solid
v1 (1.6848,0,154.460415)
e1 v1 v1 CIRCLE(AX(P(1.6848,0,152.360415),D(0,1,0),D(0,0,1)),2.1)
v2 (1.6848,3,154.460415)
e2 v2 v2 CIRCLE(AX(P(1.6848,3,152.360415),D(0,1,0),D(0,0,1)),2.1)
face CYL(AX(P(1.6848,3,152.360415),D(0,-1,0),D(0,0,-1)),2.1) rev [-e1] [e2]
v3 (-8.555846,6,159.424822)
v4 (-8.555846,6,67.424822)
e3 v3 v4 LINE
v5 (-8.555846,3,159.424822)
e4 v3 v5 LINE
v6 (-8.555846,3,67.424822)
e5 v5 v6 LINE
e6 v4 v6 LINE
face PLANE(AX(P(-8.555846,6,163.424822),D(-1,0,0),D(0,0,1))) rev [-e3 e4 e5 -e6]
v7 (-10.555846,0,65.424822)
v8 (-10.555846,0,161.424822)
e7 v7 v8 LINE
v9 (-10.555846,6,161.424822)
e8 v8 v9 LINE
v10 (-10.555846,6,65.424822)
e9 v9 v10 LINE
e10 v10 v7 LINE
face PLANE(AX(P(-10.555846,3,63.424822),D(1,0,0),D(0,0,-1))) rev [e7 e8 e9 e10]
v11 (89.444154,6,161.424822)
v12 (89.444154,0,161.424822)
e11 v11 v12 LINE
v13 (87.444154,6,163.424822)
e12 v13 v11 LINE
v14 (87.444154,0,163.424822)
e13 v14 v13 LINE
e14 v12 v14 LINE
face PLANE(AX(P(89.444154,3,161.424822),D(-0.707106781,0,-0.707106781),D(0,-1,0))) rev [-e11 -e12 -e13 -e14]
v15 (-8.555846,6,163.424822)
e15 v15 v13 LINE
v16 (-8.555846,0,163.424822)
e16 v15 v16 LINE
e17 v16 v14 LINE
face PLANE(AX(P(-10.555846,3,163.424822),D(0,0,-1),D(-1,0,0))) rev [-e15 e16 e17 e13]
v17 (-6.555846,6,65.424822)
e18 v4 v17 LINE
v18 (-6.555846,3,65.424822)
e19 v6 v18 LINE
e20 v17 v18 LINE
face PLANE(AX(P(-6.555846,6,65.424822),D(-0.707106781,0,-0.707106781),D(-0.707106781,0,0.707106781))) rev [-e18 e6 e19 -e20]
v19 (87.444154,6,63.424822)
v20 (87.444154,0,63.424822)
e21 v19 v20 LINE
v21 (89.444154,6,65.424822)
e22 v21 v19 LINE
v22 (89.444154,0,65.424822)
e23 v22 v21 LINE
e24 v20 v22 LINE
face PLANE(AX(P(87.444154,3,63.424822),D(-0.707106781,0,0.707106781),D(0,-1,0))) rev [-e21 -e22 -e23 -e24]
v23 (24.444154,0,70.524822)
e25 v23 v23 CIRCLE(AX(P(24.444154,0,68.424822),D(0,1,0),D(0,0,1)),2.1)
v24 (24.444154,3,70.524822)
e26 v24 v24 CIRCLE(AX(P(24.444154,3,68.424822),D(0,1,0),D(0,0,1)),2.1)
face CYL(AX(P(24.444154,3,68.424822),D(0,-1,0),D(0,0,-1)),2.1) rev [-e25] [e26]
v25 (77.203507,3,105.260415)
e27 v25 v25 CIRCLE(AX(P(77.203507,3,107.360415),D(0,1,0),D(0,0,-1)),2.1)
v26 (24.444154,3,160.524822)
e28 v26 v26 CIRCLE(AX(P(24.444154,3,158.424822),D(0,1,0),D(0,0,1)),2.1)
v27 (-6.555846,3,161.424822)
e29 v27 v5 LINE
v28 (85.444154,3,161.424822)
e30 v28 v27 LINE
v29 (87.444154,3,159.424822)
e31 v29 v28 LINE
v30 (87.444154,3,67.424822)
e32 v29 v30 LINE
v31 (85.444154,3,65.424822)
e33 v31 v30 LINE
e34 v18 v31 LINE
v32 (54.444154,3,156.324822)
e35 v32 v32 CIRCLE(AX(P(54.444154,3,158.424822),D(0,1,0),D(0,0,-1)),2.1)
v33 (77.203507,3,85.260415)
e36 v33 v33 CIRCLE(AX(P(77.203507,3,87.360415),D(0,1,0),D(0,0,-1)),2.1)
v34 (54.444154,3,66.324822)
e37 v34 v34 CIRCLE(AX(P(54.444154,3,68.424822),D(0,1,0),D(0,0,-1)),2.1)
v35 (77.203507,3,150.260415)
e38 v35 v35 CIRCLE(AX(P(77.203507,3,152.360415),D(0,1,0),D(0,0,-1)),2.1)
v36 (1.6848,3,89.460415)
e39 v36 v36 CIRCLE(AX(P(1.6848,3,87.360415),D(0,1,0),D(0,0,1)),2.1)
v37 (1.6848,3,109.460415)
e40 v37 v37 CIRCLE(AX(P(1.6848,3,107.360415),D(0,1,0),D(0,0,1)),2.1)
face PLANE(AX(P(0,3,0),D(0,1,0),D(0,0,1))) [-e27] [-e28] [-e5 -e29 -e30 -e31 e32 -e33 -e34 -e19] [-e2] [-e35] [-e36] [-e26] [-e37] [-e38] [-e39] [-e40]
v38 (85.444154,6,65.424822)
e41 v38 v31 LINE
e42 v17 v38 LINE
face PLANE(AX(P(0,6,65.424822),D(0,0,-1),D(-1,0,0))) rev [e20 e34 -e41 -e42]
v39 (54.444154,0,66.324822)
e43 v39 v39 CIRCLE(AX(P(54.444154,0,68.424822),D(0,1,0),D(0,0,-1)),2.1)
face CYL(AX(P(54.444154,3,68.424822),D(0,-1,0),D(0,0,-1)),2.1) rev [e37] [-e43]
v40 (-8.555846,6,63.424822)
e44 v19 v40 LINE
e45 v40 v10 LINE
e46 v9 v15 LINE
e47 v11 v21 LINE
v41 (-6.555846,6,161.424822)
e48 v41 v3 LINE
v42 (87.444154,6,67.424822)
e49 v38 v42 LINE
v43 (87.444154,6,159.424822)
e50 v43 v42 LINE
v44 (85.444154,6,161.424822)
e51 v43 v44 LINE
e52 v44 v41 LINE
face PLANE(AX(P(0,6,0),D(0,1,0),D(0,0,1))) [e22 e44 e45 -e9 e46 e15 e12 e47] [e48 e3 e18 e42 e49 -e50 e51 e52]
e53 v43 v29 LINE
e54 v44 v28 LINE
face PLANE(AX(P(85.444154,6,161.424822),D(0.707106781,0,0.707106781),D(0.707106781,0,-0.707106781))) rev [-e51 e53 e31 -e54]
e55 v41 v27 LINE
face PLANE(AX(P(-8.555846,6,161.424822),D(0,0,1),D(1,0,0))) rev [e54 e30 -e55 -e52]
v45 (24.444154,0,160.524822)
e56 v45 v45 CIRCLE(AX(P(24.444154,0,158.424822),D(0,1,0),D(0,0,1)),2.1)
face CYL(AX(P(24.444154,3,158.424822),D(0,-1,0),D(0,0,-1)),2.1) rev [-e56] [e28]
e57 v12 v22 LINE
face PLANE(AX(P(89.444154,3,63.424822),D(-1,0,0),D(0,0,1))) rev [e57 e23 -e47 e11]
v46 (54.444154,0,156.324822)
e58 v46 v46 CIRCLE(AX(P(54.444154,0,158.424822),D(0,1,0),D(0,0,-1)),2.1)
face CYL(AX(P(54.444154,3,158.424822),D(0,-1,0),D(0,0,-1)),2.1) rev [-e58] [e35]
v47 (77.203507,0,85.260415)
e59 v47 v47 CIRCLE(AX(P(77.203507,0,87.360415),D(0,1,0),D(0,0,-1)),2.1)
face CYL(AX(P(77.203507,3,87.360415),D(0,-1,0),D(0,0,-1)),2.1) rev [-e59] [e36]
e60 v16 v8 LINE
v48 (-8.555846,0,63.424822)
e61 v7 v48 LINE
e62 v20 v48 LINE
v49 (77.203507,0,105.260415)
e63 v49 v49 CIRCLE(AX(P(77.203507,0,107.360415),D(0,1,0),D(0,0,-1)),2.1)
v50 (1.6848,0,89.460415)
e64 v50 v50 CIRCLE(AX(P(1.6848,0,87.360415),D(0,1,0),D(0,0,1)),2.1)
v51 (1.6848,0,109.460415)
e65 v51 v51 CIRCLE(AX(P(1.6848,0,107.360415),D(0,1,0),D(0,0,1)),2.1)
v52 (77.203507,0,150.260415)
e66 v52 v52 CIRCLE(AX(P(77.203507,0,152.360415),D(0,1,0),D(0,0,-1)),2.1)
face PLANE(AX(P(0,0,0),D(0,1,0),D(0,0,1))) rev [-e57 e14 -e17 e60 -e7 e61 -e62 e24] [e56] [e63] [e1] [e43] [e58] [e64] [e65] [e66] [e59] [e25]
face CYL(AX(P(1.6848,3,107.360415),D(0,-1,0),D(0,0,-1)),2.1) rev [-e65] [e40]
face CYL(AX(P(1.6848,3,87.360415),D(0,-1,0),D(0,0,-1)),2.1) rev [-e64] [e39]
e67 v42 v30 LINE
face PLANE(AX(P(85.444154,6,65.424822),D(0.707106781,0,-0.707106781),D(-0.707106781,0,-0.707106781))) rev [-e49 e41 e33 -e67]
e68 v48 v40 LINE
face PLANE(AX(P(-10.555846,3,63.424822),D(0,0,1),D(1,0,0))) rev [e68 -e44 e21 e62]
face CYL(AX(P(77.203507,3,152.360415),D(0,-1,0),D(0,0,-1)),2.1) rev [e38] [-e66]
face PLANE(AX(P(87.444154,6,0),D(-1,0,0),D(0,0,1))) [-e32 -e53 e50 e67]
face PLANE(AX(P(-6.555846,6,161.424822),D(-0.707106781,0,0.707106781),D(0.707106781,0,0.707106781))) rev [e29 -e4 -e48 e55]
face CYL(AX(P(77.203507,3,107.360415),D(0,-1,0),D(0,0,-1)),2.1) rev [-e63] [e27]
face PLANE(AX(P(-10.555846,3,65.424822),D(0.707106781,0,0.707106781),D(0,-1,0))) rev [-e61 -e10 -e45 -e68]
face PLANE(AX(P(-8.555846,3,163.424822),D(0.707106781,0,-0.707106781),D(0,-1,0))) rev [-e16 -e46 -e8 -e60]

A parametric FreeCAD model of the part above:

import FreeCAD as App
import Part
import Sketcher
from FreeCAD import Vector


def edges_at(feature, points):
    """Names of the edges that pass closest to the given points."""
    edges = feature.Shape.Edges
    near = lambda p: min(range(len(edges)), key=lambda i: edges[i].distToShape(Part.Vertex(*p))[0])
    return sorted({f"Edge{near(p) + 1}" for p in points})

doc = App.newDocument("Part")
body = doc.addObject("PartDesign::Body", "Body")

sketch1 = body.newObject("Sketcher::SketchObject", "Sketch")
sketch1.AttachmentSupport = (doc.getObject("XZ_Plane"), [""])
sketch1.MapMode = "FlatFace"
sketch1.addGeometry(Part.LineSegment(Vector(-10.6, 63.4, 0), Vector(-10.6, 163.4, 0)), False)
sketch1.addGeometry(Part.LineSegment(Vector(-10.6, 163.4, 0), Vector(89.4, 163.4, 0)), False)
sketch1.addGeometry(Part.LineSegment(Vector(89.4, 163.4, 0), Vector(89.4, 63.4, 0)), False)
sketch1.addGeometry(Part.LineSegment(Vector(89.4, 63.4, 0), Vector(-10.6, 63.4, 0)), False)
sketch1.addGeometry(Part.Circle(Vector(1.7, 152.4, 0), Vector(0, 0, 1), 2.1), False)
sketch1.addGeometry(Part.Circle(Vector(24.4, 158.4, 0), Vector(0, 0, 1), 2.1), False)
sketch1.addGeometry(Part.Circle(Vector(54.4, 158.4, 0), Vector(0, 0, 1), 2.1), False)
sketch1.addGeometry(Part.Circle(Vector(77.2, 152.4, 0), Vector(0, 0, 1), 2.1), False)
sketch1.addGeometry(Part.Circle(Vector(1.7, 107.4, 0), Vector(0, 0, 1), 2.1), False)
sketch1.addGeometry(Part.Circle(Vector(1.7, 87.4, 0), Vector(0, 0, 1), 2.1), False)
sketch1.addGeometry(Part.Circle(Vector(24.4, 68.4, 0), Vector(0, 0, 1), 2.1), False)
sketch1.addGeometry(Part.Circle(Vector(77.2, 107.4, 0), Vector(0, 0, 1), 2.1), False)
sketch1.addGeometry(Part.Circle(Vector(54.4, 68.4, 0), Vector(0, 0, 1), 2.1), False)
sketch1.addGeometry(Part.Circle(Vector(77.2, 87.4, 0), Vector(0, 0, 1), 2.1), False)
sketch1.addConstraint(Sketcher.Constraint("Coincident", 0, 2, 1, 1))
sketch1.addConstraint(Sketcher.Constraint("Coincident", 1, 2, 2, 1))
sketch1.addConstraint(Sketcher.Constraint("Coincident", 2, 2, 3, 1))
sketch1.addConstraint(Sketcher.Constraint("Coincident", 3, 2, 0, 1))
sketch1.addConstraint(Sketcher.Constraint("Vertical", 0))
sketch1.addConstraint(Sketcher.Constraint("Horizontal", 1))
sketch1.addConstraint(Sketcher.Constraint("Vertical", 2))
sketch1.addConstraint(Sketcher.Constraint("Horizontal", 3))
sketch1.addConstraint(Sketcher.Constraint("Equal", 4, 5))
sketch1.addConstraint(Sketcher.Constraint("Equal", 5, 6))
sketch1.addConstraint(Sketcher.Constraint("Equal", 6, 7))
sketch1.addConstraint(Sketcher.Constraint("Equal", 7, 8))
sketch1.addConstraint(Sketcher.Constraint("Equal", 8, 9))
sketch1.addConstraint(Sketcher.Constraint("Equal", 9, 10))
sketch1.addConstraint(Sketcher.Constraint("Equal", 10, 11))
sketch1.addConstraint(Sketcher.Constraint("Equal", 11, 12))
sketch1.addConstraint(Sketcher.Constraint("Equal", 12, 13))
sketch1.addConstraint(Sketcher.Constraint("Horizontal", 5, 3, 6, 3))
sketch1.addConstraint(Sketcher.Constraint("Horizontal", 4, 3, 7, 3))
sketch1.addConstraint(Sketcher.Constraint("Horizontal", 8, 3, 11, 3))
sketch1.addConstraint(Sketcher.Constraint("Horizontal", 10, 3, 12, 3))
sketch1.addConstraint(Sketcher.Constraint("Horizontal", 9, 3, 13, 3))
sketch1.addConstraint(Sketcher.Constraint("Vertical", 4, 3, 8, 3))
sketch1.addConstraint(Sketcher.Constraint("Vertical", 8, 3, 9, 3))
sketch1.addConstraint(Sketcher.Constraint("Vertical", 5, 3, 10, 3))
sketch1.addConstraint(Sketcher.Constraint("Vertical", 7, 3, 11, 3))
sketch1.addConstraint(Sketcher.Constraint("Vertical", 6, 3, 12, 3))
sketch1.addConstraint(Sketcher.Constraint("Vertical", 11, 3, 13, 3))
sketch1.addConstraint(Sketcher.Constraint("Equal", 3, 0))
sketch1.addConstraint(Sketcher.Constraint("Diameter", 4, 4.2))
sketch1.addConstraint(Sketcher.Constraint("DistanceX", 1, 1, 1, 2, 100.0))
sketch1.addConstraint(Sketcher.Constraint("DistanceX", 5, 3, 6, 3, 30.0))
sketch1.addConstraint(Sketcher.Constraint("DistanceY", 8, 3, 4, 3, 45.0))
sketch1.addConstraint(Sketcher.Constraint("DistanceY", 9, 3, 8, 3, 20.0))
sketch1.addConstraint(Sketcher.Constraint("DistanceY", 10, 3, 5, 3, 90.0))
sketch1.addConstraint(Sketcher.Constraint("DistanceX", 0, 2, 5, 3, 35.0))
sketch1.addConstraint(Sketcher.Constraint("DistanceY", 5, 3, 0, 2, 5.0))
sketch1.addConstraint(Sketcher.Constraint("DistanceX", -1, 1, 4, 3, 1.6848))
sketch1.addConstraint(Sketcher.Constraint("DistanceY", -1, 1, 5, 3, 158.424822))
sketch1.addConstraint(Sketcher.Constraint("DistanceY", -1, 1, 4, 3, 152.360415))
sketch1.addConstraint(Sketcher.Constraint("DistanceX", -1, 1, 5, 3, 24.444154))
sketch1.addConstraint(Sketcher.Constraint("DistanceX", -1, 1, 7, 3, 77.203508))
pad1 = body.newObject("PartDesign::Pad", "Pad")
pad1.Profile = sketch1
pad1.Length = 3
pad1.Reversed = True

sketch2 = body.newObject("Sketcher::SketchObject", "Sketch001")
sketch2.AttachmentSupport = (doc.getObject("XZ_Plane"), [""])
sketch2.MapMode = "FlatFace"
sketch2.AttachmentOffset = App.Placement(Vector(0, 0, -3), App.Rotation())
sketch2.addGeometry(Part.LineSegment(Vector(-10.6, 63.4, 0), Vector(-10.6, 163.4, 0)), False)
sketch2.addGeometry(Part.LineSegment(Vector(-10.6, 163.4, 0), Vector(-8.6, 163.4, 0)), False)
sketch2.addGeometry(Part.LineSegment(Vector(-8.6, 163.4, 0), Vector(-8.6, 65.4, 0)), False)
sketch2.addGeometry(Part.LineSegment(Vector(-8.6, 65.4, 0), Vector(87.4, 65.4, 0)), False)
sketch2.addGeometry(Part.LineSegment(Vector(87.4, 65.4, 0), Vector(87.4, 163.4, 0)), False)
sketch2.addGeometry(Part.LineSegment(Vector(87.4, 163.4, 0), Vector(89.4, 163.4, 0)), False)
sketch2.addGeometry(Part.LineSegment(Vector(89.4, 163.4, 0), Vector(89.4, 63.4, 0)), False)
sketch2.addGeometry(Part.LineSegment(Vector(89.4, 63.4, 0), Vector(-10.6, 63.4, 0)), False)
sketch2.addConstraint(Sketcher.Constraint("Coincident", 0, 2, 1, 1))
sketch2.addConstraint(Sketcher.Constraint("Coincident", 1, 2, 2, 1))
sketch2.addConstraint(Sketcher.Constraint("Coincident", 2, 2, 3, 1))
sketch2.addConstraint(Sketcher.Constraint("Coincident", 3, 2, 4, 1))
sketch2.addConstraint(Sketcher.Constraint("Coincident", 4, 2, 5, 1))
sketch2.addConstraint(Sketcher.Constraint("Coincident", 5, 2, 6, 1))
sketch2.addConstraint(Sketcher.Constraint("Coincident", 6, 2, 7, 1))
sketch2.addConstraint(Sketcher.Constraint("Coincident", 7, 2, 0, 1))
sketch2.addConstraint(Sketcher.Constraint("Vertical", 0))
sketch2.addConstraint(Sketcher.Constraint("Horizontal", 1))
sketch2.addConstraint(Sketcher.Constraint("Vertical", 2))
sketch2.addConstraint(Sketcher.Constraint("Horizontal", 3))
sketch2.addConstraint(Sketcher.Constraint("Vertical", 4))
sketch2.addConstraint(Sketcher.Constraint("Horizontal", 5))
sketch2.addConstraint(Sketcher.Constraint("Vertical", 6))
sketch2.addConstraint(Sketcher.Constraint("Horizontal", 7))
sketch2.addConstraint(Sketcher.Constraint("Horizontal", 1, 2, 4, 2))
sketch2.addConstraint(Sketcher.Constraint("Equal", 1, 5))
sketch2.addConstraint(Sketcher.Constraint("Equal", 7, 0))
sketch2.addConstraint(Sketcher.Constraint("DistanceX", 1, 1, 1, 2, 2.0))
sketch2.addConstraint(Sketcher.Constraint("DistanceX", 3, 1, 3, 2, 96.0))
sketch2.addConstraint(Sketcher.Constraint("DistanceY", 2, 2, 2, 1, 98.0))
sketch2.addConstraint(Sketcher.Constraint("DistanceY", -1, 1, 0, 2, 163.424822))
sketch2.addConstraint(Sketcher.Constraint("DistanceX", 0, 2, -1, 1, 10.555846))
pad2 = body.newObject("PartDesign::Pad", "Pad001")
pad2.Profile = sketch2
pad2.Length = 3
pad2.Reversed = True

sketch3 = body.newObject("Sketcher::SketchObject", "Sketch002")
sketch3.AttachmentSupport = (doc.getObject("XZ_Plane"), [""])
sketch3.MapMode = "FlatFace"
sketch3.AttachmentOffset = App.Placement(Vector(0, 0, -3), App.Rotation())
sketch3.addGeometry(Part.LineSegment(Vector(-8.6, 161.4, 0), Vector(-8.6, 163.4, 0)), False)
sketch3.addGeometry(Part.LineSegment(Vector(-8.6, 163.4, 0), Vector(87.4, 163.4, 0)), False)
sketch3.addGeometry(Part.LineSegment(Vector(87.4, 163.4, 0), Vector(87.4, 161.4, 0)), False)
sketch3.addGeometry(Part.LineSegment(Vector(87.4, 161.4, 0), Vector(-8.6, 161.4, 0)), False)
sketch3.addConstraint(Sketcher.Constraint("Coincident", 0, 2, 1, 1))
sketch3.addConstraint(Sketcher.Constraint("Coincident", 1, 2, 2, 1))
sketch3.addConstraint(Sketcher.Constraint("Coincident", 2, 2, 3, 1))
sketch3.addConstraint(Sketcher.Constraint("Coincident", 3, 2, 0, 1))
sketch3.addConstraint(Sketcher.Constraint("Vertical", 0))
sketch3.addConstraint(Sketcher.Constraint("Horizontal", 1))
sketch3.addConstraint(Sketcher.Constraint("Vertical", 2))
sketch3.addConstraint(Sketcher.Constraint("Horizontal", 3))
sketch3.addConstraint(Sketcher.Constraint("DistanceX", 1, 1, 1, 2, 96.0))
sketch3.addConstraint(Sketcher.Constraint("DistanceY", 0, 1, 0, 2, 2.0))
sketch3.addConstraint(Sketcher.Constraint("DistanceY", -1, 1, 0, 2, 163.424822))
sketch3.addConstraint(Sketcher.Constraint("DistanceX", 0, 2, -1, 1, 8.555846))
pad3 = body.newObject("PartDesign::Pad", "Pad002")
pad3.Profile = sketch3
pad3.Length = 3
pad3.Reversed = True
doc.recompute()

chamfer = body.newObject("PartDesign::Chamfer", "Chamfer")
chamfer.Base = (pad3, edges_at(pad3, [
    (-10.556, 3, 63.425),
    (89.444, 3, 63.425),
    (89.444, 3, 163.425),
    (-10.556, 3, 163.425),
]))
chamfer.Size = 2

sketch4 = body.newObject("Sketcher::SketchObject", "Sketch003")
sketch4.AttachmentSupport = (doc.getObject("XZ_Plane"), [""])
sketch4.MapMode = "FlatFace"
sketch4.AttachmentOffset = App.Placement(Vector(0, 0, -3), App.Rotation())
sketch4.addGeometry(Part.LineSegment(Vector(-8.6, 67.4, 0), Vector(-6.6, 65.4, 0)), False)
sketch4.addGeometry(Part.LineSegment(Vector(-6.6, 65.4, 0), Vector(-8.6, 65.4, 0)), False)
sketch4.addGeometry(Part.LineSegment(Vector(-8.6, 65.4, 0), Vector(-8.6, 67.4, 0)), False)
sketch4.addGeometry(Part.LineSegment(Vector(87.4, 67.4, 0), Vector(87.4, 65.4, 0)), False)
sketch4.addGeometry(Part.LineSegment(Vector(87.4, 65.4, 0), Vector(85.4, 65.4, 0)), False)
sketch4.addGeometry(Part.LineSegment(Vector(85.4, 65.4, 0), Vector(87.4, 67.4, 0)), False)
sketch4.addGeometry(Part.LineSegment(Vector(87.4, 159.4, 0), Vector(85.4, 161.4, 0)), False)
sketch4.addGeometry(Part.LineSegment(Vector(85.4, 161.4, 0), Vector(87.4, 161.4, 0)), False)
sketch4.addGeometry(Part.LineSegment(Vector(87.4, 161.4, 0), Vector(87.4, 159.4, 0)), False)
sketch4.addGeometry(Part.LineSegment(Vector(-8.6, 159.4, 0), Vector(-8.6, 161.4, 0)), False)
sketch4.addGeometry(Part.LineSegment(Vector(-8.6, 161.4, 0), Vector(-6.6, 161.4, 0)), False)
sketch4.addGeometry(Part.LineSegment(Vector(-6.6, 161.4, 0), Vector(-8.6, 159.4, 0)), False)
sketch4.addConstraint(Sketcher.Constraint("Coincident", 0, 2, 1, 1))
sketch4.addConstraint(Sketcher.Constraint("Coincident", 1, 2, 2, 1))
sketch4.addConstraint(Sketcher.Constraint("Coincident", 2, 2, 0, 1))
sketch4.addConstraint(Sketcher.Constraint("Coincident", 3, 2, 4, 1))
sketch4.addConstraint(Sketcher.Constraint("Coincident", 4, 2, 5, 1))
sketch4.addConstraint(Sketcher.Constraint("Coincident", 5, 2, 3, 1))
sketch4.addConstraint(Sketcher.Constraint("Coincident", 6, 2, 7, 1))
sketch4.addConstraint(Sketcher.Constraint("Coincident", 7, 2, 8, 1))
sketch4.addConstraint(Sketcher.Constraint("Coincident", 8, 2, 6, 1))
sketch4.addConstraint(Sketcher.Constraint("Coincident", 9, 2, 10, 1))
sketch4.addConstraint(Sketcher.Constraint("Coincident", 10, 2, 11, 1))
sketch4.addConstraint(Sketcher.Constraint("Coincident", 11, 2, 9, 1))
sketch4.addConstraint(Sketcher.Constraint("Horizontal", 1))
sketch4.addConstraint(Sketcher.Constraint("Vertical", 2))
sketch4.addConstraint(Sketcher.Constraint("Vertical", 3))
sketch4.addConstraint(Sketcher.Constraint("Horizontal", 4))
sketch4.addConstraint(Sketcher.Constraint("Horizontal", 7))
sketch4.addConstraint(Sketcher.Constraint("Vertical", 8))
sketch4.addConstraint(Sketcher.Constraint("Vertical", 9))
sketch4.addConstraint(Sketcher.Constraint("Horizontal", 10))
sketch4.addConstraint(Sketcher.Constraint("Perpendicular", 0, 5))
sketch4.addConstraint(Sketcher.Constraint("Perpendicular", 5, 6))
sketch4.addConstraint(Sketcher.Constraint("Perpendicular", 6, 11))
sketch4.addConstraint(Sketcher.Constraint("Horizontal", 1, 2, 3, 2))
sketch4.addConstraint(Sketcher.Constraint("Horizontal", 2, 2, 5, 2))
sketch4.addConstraint(Sketcher.Constraint("Horizontal", 7, 2, 9, 2))
sketch4.addConstraint(Sketcher.Constraint("Horizontal", 8, 2, 11, 2))
sketch4.addConstraint(Sketcher.Constraint("Vertical", 4, 2, 6, 2))
sketch4.addConstraint(Sketcher.Constraint("Vertical", 5, 2, 7, 2))
sketch4.addConstraint(Sketcher.Constraint("Vertical", 2, 2, 9, 2))
sketch4.addConstraint(Sketcher.Constraint("Vertical", 0, 2, 10, 2))
sketch4.addConstraint(Sketcher.Constraint("DistanceX", 1, 2, 1, 1, 2.0))
sketch4.addConstraint(Sketcher.Constraint("DistanceX", 0, 2, 3, 2, 94.0))
sketch4.addConstraint(Sketcher.Constraint("DistanceY", 5, 2, 6, 2, 94.0))
sketch4.addConstraint(Sketcher.Constraint("DistanceY", -1, 1, 0, 2, 65.424822))
sketch4.addConstraint(Sketcher.Constraint("DistanceX", 0, 2, -1, 1, 6.555846))
pad4 = body.newObject("PartDesign::Pad", "Pad003")
pad4.Profile = sketch4
pad4.Length = 3
pad4.Reversed = True

doc.recompute()
